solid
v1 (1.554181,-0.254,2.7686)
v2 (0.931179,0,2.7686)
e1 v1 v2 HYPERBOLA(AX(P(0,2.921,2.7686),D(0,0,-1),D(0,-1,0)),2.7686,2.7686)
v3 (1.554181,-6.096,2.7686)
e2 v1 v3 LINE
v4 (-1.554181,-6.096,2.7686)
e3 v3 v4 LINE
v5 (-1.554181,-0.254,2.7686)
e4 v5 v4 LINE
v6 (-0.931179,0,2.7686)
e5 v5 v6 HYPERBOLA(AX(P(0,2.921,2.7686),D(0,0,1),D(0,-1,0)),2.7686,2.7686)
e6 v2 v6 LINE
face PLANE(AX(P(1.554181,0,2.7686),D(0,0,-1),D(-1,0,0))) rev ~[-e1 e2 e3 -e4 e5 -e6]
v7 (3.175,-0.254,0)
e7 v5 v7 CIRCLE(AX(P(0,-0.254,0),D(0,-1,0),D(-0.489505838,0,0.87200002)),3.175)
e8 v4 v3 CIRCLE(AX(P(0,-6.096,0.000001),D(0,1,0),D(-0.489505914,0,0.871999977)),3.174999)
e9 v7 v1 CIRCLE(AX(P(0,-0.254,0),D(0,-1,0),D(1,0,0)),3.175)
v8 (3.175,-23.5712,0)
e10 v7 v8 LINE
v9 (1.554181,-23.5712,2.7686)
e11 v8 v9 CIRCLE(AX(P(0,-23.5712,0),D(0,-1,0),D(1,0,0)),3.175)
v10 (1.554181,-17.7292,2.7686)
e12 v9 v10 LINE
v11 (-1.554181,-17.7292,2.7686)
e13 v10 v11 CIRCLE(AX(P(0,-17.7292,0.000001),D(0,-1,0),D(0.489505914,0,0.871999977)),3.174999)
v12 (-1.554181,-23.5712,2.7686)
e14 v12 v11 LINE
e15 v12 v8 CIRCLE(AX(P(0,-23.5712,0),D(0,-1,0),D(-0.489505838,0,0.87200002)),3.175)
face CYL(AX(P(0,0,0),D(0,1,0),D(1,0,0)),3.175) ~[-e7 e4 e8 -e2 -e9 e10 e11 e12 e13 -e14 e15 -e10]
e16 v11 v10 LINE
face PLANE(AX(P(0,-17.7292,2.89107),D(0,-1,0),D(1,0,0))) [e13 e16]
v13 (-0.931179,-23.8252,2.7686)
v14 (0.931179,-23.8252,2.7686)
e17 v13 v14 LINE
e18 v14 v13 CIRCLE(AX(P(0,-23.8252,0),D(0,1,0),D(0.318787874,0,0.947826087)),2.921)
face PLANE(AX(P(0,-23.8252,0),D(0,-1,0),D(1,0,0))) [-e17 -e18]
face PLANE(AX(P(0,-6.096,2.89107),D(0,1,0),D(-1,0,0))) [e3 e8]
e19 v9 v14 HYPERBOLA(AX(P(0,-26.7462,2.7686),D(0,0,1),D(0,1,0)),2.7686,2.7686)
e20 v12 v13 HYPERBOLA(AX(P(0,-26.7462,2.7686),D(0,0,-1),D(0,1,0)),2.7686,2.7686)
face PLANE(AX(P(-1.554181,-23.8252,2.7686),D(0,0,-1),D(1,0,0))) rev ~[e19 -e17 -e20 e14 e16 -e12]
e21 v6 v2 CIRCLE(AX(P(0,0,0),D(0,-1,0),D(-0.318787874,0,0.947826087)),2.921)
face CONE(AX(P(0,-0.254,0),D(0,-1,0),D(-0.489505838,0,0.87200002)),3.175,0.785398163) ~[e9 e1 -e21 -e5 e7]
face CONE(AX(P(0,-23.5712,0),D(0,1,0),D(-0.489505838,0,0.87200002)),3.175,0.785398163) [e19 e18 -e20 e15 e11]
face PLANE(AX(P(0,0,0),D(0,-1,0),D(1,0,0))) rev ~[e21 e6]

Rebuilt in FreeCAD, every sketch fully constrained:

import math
import FreeCAD as App
import Part
import Sketcher
Q = App.Units.Quantity


def edges_at(feature, points):
    """Names of the edges that pass closest to the given points."""
    edges = feature.Shape.Edges
    near = lambda p: min(range(len(edges)), key=lambda i: edges[i].distToShape(Part.Vertex(*p))[0])
    return sorted({f"Edge{near(p) + 1}" for p in points})

doc = App.newDocument("Part")
body = doc.addObject("PartDesign::Body", "Body")

sketch1 = doc.addObject("Sketcher::SketchObject", "Sketch")
body.addObject(sketch1)
sketch1.AttachmentSupport = (doc.XZ_Plane, [""])
sketch1.MapMode = "FlatFace"
sketch1.addGeometry(Part.Circle(App.Vector(0, 0, 0), App.Vector(0, 0, 1), 3.2), False)
sketch1.addConstraint(Sketcher.Constraint("Coincident", 0, 3, -1, 1))
sketch1.addConstraint(Sketcher.Constraint("Diameter", 0, Q("0.25 in")))
pad1 = doc.addObject("PartDesign::Pad", "Pad")
body.addObject(pad1)
pad1.Profile = sketch1
pad1.Length = Q("0.938 in")

sketch2 = doc.addObject("Sketcher::SketchObject", "Sketch001")
body.addObject(sketch2)
sketch2.AttachmentSupport = (doc.XZ_Plane, [""])
sketch2.MapMode = "FlatFace"
sketch2.addGeometry(Part.ArcOfCircle(Part.Circle(App.Vector(0, 0, 0), App.Vector(0, 0, 1), 3.2), math.radians(61), math.radians(119)), False)
sketch2.addGeometry(Part.LineSegment(App.Vector(1.6, 2.8, 0), App.Vector(-1.6, 2.8, 0)), False)
sketch2.addConstraint(Sketcher.Constraint("Coincident", 0, 1, 1, 1))
sketch2.addConstraint(Sketcher.Constraint("Coincident", 1, 2, 0, 2))
sketch2.addConstraint(Sketcher.Constraint("Horizontal", 1))
sketch2.addConstraint(Sketcher.Constraint("Coincident", 0, 3, -1, 1))
sketch2.addConstraint(Sketcher.Constraint("Radius", 0, Q("0.125 in")))
sketch2.addConstraint(Sketcher.Constraint("DistanceY", -1, 1, 0, 1, Q("0.109 in")))
pocket1 = doc.addObject("PartDesign::Pocket", "Pocket")
body.addObject(pocket1)
pocket1.Profile = sketch2
pocket1.Length = Q("0.24 in")
pocket1.Reversed = True

sketch3 = doc.addObject("Sketcher::SketchObject", "Sketch002")
body.addObject(sketch3)
sketch3.AttachmentSupport = (doc.XZ_Plane, [""])
sketch3.MapMode = "FlatFace"
sketch3.AttachmentOffset = App.Placement(App.Vector(0, 0, 0.938 * 25.4), App.Rotation())
sketch3.addGeometry(Part.ArcOfCircle(Part.Circle(App.Vector(0, 0, 0), App.Vector(0, 0, 1), 3.2), math.radians(61), math.radians(119)), False)
sketch3.addGeometry(Part.LineSegment(App.Vector(-1.6, 2.8, 0), App.Vector(1.6, 2.8, 0)), False)
sketch3.addConstraint(Sketcher.Constraint("Coincident", 0, 1, 1, 2))
sketch3.addConstraint(Sketcher.Constraint("Coincident", 1, 1, 0, 2))
sketch3.addConstraint(Sketcher.Constraint("Horizontal", 1))
sketch3.addConstraint(Sketcher.Constraint("Coincident", 0, 3, -1, 1))
sketch3.addConstraint(Sketcher.Constraint("Radius", 0, Q("0.125 in")))
sketch3.addConstraint(Sketcher.Constraint("DistanceY", -1, 1, 0, 1, Q("0.109 in")))
pocket2 = doc.addObject("PartDesign::Pocket", "Pocket001")
body.addObject(pocket2)
pocket2.Profile = sketch3
pocket2.Length = Q("0.24 in")
doc.recompute()

chamfer = doc.addObject("PartDesign::Chamfer", "Chamfer")
body.addObject(chamfer)
chamfer.Base = (pocket2, edges_at(pocket2, [(-1.604, 0, -2.74), (-1.604, -23.825, -2.74)]))
chamfer.Size = Q("0.01 in")

doc.recompute()
